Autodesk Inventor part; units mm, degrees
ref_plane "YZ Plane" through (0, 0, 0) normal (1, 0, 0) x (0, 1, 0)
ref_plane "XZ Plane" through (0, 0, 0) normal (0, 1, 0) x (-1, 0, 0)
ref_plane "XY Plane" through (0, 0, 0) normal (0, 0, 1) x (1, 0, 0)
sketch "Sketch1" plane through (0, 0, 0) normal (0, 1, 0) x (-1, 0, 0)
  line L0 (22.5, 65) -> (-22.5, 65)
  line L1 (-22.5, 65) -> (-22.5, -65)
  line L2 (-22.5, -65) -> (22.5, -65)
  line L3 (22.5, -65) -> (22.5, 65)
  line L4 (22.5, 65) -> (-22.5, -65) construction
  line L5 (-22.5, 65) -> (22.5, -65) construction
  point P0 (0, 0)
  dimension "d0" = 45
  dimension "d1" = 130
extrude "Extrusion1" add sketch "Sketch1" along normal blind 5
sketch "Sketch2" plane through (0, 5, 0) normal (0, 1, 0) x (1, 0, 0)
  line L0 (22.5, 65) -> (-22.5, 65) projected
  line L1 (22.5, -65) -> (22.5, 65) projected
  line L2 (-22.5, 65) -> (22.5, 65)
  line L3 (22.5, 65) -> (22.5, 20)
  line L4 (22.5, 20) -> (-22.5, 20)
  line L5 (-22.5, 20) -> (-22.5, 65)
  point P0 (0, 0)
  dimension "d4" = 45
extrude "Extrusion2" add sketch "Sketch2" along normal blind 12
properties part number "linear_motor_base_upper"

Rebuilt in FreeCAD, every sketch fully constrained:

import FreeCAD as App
import Part
import Sketcher

doc = App.newDocument("Part")
body = doc.addObject("PartDesign::Body", "Body")

# Sketch on XZ plane
sketch1 = doc.addObject("Sketcher::SketchObject", "Sketch")
body.addObject(sketch1)
sketch1.AttachmentSupport = (doc.XZ_Plane, [""])
sketch1.MapMode = "FlatFace"
sketch1.addGeometry(Part.LineSegment(App.Vector(-22.5, -65, 0), App.Vector(-22.5, 65, 0)), False)
sketch1.addGeometry(Part.LineSegment(App.Vector(-22.5, 65, 0), App.Vector(22.5, 65, 0)), False)
sketch1.addGeometry(Part.LineSegment(App.Vector(22.5, 65, 0), App.Vector(22.5, -65, 0)), False)
sketch1.addGeometry(Part.LineSegment(App.Vector(22.5, -65, 0), App.Vector(-22.5, -65, 0)), False)
sketch1.addConstraint(Sketcher.Constraint("Coincident", 0, 2, 1, 1))
sketch1.addConstraint(Sketcher.Constraint("Coincident", 1, 2, 2, 1))
sketch1.addConstraint(Sketcher.Constraint("Coincident", 2, 2, 3, 1))
sketch1.addConstraint(Sketcher.Constraint("Coincident", 3, 2, 0, 1))
sketch1.addConstraint(Sketcher.Constraint("Vertical", 0))
sketch1.addConstraint(Sketcher.Constraint("Horizontal", 1))
sketch1.addConstraint(Sketcher.Constraint("Vertical", 2))
sketch1.addConstraint(Sketcher.Constraint("Horizontal", 3))
sketch1.addConstraint(Sketcher.Constraint("Symmetric", 0, 2, 2, 2, -1, 1))
sketch1.addConstraint(Sketcher.Constraint("DistanceX", 1, 1, 1, 2, 45.0))
sketch1.addConstraint(Sketcher.Constraint("DistanceY", 0, 1, 0, 2, 130.0))
pad1 = doc.addObject("PartDesign::Pad", "Pad")
body.addObject(pad1)
pad1.Profile = sketch1
pad1.Length = 5
pad1.Reversed = True

# Sketch on XZ plane
sketch2 = doc.addObject("Sketcher::SketchObject", "Sketch001")
body.addObject(sketch2)
sketch2.AttachmentSupport = (doc.XZ_Plane, [""])
sketch2.MapMode = "FlatFace"
sketch2.AttachmentOffset = App.Placement(App.Vector(0, 0, -5), App.Rotation())
sketch2.addGeometry(Part.LineSegment(App.Vector(22.5, -20, 0), App.Vector(22.5, -65, 0)), False)
sketch2.addGeometry(Part.LineSegment(App.Vector(22.5, -65, 0), App.Vector(-22.5, -65, 0)), False)
sketch2.addGeometry(Part.LineSegment(App.Vector(-22.5, -65, 0), App.Vector(-22.5, -20, 0)), False)
sketch2.addGeometry(Part.LineSegment(App.Vector(-22.5, -20, 0), App.Vector(22.5, -20, 0)), False)
sketch2.addConstraint(Sketcher.Constraint("Coincident", 0, 2, 1, 1))
sketch2.addConstraint(Sketcher.Constraint("Coincident", 1, 2, 2, 1))
sketch2.addConstraint(Sketcher.Constraint("Coincident", 2, 2, 3, 1))
sketch2.addConstraint(Sketcher.Constraint("Coincident", 3, 2, 0, 1))
sketch2.addConstraint(Sketcher.Constraint("Vertical", 0))
sketch2.addConstraint(Sketcher.Constraint("Horizontal", 1))
sketch2.addConstraint(Sketcher.Constraint("Vertical", 2))
sketch2.addConstraint(Sketcher.Constraint("Horizontal", 3))
sketch2.addConstraint(Sketcher.Constraint("Equal", 3, 0))
sketch2.addConstraint(Sketcher.Constraint("DistanceX", 1, 2, 1, 1, 45.0))
sketch2.addConstraint(Sketcher.Constraint("DistanceY", 0, 2, -1, 1, 65.0))
sketch2.addConstraint(Sketcher.Constraint("DistanceX", -1, 1, 0, 2, 22.5))
pad2 = doc.addObject("PartDesign::Pad", "Pad001")
body.addObject(pad2)
pad2.Profile = sketch2
pad2.Length = 12
pad2.Reversed = True

doc.recompute()
